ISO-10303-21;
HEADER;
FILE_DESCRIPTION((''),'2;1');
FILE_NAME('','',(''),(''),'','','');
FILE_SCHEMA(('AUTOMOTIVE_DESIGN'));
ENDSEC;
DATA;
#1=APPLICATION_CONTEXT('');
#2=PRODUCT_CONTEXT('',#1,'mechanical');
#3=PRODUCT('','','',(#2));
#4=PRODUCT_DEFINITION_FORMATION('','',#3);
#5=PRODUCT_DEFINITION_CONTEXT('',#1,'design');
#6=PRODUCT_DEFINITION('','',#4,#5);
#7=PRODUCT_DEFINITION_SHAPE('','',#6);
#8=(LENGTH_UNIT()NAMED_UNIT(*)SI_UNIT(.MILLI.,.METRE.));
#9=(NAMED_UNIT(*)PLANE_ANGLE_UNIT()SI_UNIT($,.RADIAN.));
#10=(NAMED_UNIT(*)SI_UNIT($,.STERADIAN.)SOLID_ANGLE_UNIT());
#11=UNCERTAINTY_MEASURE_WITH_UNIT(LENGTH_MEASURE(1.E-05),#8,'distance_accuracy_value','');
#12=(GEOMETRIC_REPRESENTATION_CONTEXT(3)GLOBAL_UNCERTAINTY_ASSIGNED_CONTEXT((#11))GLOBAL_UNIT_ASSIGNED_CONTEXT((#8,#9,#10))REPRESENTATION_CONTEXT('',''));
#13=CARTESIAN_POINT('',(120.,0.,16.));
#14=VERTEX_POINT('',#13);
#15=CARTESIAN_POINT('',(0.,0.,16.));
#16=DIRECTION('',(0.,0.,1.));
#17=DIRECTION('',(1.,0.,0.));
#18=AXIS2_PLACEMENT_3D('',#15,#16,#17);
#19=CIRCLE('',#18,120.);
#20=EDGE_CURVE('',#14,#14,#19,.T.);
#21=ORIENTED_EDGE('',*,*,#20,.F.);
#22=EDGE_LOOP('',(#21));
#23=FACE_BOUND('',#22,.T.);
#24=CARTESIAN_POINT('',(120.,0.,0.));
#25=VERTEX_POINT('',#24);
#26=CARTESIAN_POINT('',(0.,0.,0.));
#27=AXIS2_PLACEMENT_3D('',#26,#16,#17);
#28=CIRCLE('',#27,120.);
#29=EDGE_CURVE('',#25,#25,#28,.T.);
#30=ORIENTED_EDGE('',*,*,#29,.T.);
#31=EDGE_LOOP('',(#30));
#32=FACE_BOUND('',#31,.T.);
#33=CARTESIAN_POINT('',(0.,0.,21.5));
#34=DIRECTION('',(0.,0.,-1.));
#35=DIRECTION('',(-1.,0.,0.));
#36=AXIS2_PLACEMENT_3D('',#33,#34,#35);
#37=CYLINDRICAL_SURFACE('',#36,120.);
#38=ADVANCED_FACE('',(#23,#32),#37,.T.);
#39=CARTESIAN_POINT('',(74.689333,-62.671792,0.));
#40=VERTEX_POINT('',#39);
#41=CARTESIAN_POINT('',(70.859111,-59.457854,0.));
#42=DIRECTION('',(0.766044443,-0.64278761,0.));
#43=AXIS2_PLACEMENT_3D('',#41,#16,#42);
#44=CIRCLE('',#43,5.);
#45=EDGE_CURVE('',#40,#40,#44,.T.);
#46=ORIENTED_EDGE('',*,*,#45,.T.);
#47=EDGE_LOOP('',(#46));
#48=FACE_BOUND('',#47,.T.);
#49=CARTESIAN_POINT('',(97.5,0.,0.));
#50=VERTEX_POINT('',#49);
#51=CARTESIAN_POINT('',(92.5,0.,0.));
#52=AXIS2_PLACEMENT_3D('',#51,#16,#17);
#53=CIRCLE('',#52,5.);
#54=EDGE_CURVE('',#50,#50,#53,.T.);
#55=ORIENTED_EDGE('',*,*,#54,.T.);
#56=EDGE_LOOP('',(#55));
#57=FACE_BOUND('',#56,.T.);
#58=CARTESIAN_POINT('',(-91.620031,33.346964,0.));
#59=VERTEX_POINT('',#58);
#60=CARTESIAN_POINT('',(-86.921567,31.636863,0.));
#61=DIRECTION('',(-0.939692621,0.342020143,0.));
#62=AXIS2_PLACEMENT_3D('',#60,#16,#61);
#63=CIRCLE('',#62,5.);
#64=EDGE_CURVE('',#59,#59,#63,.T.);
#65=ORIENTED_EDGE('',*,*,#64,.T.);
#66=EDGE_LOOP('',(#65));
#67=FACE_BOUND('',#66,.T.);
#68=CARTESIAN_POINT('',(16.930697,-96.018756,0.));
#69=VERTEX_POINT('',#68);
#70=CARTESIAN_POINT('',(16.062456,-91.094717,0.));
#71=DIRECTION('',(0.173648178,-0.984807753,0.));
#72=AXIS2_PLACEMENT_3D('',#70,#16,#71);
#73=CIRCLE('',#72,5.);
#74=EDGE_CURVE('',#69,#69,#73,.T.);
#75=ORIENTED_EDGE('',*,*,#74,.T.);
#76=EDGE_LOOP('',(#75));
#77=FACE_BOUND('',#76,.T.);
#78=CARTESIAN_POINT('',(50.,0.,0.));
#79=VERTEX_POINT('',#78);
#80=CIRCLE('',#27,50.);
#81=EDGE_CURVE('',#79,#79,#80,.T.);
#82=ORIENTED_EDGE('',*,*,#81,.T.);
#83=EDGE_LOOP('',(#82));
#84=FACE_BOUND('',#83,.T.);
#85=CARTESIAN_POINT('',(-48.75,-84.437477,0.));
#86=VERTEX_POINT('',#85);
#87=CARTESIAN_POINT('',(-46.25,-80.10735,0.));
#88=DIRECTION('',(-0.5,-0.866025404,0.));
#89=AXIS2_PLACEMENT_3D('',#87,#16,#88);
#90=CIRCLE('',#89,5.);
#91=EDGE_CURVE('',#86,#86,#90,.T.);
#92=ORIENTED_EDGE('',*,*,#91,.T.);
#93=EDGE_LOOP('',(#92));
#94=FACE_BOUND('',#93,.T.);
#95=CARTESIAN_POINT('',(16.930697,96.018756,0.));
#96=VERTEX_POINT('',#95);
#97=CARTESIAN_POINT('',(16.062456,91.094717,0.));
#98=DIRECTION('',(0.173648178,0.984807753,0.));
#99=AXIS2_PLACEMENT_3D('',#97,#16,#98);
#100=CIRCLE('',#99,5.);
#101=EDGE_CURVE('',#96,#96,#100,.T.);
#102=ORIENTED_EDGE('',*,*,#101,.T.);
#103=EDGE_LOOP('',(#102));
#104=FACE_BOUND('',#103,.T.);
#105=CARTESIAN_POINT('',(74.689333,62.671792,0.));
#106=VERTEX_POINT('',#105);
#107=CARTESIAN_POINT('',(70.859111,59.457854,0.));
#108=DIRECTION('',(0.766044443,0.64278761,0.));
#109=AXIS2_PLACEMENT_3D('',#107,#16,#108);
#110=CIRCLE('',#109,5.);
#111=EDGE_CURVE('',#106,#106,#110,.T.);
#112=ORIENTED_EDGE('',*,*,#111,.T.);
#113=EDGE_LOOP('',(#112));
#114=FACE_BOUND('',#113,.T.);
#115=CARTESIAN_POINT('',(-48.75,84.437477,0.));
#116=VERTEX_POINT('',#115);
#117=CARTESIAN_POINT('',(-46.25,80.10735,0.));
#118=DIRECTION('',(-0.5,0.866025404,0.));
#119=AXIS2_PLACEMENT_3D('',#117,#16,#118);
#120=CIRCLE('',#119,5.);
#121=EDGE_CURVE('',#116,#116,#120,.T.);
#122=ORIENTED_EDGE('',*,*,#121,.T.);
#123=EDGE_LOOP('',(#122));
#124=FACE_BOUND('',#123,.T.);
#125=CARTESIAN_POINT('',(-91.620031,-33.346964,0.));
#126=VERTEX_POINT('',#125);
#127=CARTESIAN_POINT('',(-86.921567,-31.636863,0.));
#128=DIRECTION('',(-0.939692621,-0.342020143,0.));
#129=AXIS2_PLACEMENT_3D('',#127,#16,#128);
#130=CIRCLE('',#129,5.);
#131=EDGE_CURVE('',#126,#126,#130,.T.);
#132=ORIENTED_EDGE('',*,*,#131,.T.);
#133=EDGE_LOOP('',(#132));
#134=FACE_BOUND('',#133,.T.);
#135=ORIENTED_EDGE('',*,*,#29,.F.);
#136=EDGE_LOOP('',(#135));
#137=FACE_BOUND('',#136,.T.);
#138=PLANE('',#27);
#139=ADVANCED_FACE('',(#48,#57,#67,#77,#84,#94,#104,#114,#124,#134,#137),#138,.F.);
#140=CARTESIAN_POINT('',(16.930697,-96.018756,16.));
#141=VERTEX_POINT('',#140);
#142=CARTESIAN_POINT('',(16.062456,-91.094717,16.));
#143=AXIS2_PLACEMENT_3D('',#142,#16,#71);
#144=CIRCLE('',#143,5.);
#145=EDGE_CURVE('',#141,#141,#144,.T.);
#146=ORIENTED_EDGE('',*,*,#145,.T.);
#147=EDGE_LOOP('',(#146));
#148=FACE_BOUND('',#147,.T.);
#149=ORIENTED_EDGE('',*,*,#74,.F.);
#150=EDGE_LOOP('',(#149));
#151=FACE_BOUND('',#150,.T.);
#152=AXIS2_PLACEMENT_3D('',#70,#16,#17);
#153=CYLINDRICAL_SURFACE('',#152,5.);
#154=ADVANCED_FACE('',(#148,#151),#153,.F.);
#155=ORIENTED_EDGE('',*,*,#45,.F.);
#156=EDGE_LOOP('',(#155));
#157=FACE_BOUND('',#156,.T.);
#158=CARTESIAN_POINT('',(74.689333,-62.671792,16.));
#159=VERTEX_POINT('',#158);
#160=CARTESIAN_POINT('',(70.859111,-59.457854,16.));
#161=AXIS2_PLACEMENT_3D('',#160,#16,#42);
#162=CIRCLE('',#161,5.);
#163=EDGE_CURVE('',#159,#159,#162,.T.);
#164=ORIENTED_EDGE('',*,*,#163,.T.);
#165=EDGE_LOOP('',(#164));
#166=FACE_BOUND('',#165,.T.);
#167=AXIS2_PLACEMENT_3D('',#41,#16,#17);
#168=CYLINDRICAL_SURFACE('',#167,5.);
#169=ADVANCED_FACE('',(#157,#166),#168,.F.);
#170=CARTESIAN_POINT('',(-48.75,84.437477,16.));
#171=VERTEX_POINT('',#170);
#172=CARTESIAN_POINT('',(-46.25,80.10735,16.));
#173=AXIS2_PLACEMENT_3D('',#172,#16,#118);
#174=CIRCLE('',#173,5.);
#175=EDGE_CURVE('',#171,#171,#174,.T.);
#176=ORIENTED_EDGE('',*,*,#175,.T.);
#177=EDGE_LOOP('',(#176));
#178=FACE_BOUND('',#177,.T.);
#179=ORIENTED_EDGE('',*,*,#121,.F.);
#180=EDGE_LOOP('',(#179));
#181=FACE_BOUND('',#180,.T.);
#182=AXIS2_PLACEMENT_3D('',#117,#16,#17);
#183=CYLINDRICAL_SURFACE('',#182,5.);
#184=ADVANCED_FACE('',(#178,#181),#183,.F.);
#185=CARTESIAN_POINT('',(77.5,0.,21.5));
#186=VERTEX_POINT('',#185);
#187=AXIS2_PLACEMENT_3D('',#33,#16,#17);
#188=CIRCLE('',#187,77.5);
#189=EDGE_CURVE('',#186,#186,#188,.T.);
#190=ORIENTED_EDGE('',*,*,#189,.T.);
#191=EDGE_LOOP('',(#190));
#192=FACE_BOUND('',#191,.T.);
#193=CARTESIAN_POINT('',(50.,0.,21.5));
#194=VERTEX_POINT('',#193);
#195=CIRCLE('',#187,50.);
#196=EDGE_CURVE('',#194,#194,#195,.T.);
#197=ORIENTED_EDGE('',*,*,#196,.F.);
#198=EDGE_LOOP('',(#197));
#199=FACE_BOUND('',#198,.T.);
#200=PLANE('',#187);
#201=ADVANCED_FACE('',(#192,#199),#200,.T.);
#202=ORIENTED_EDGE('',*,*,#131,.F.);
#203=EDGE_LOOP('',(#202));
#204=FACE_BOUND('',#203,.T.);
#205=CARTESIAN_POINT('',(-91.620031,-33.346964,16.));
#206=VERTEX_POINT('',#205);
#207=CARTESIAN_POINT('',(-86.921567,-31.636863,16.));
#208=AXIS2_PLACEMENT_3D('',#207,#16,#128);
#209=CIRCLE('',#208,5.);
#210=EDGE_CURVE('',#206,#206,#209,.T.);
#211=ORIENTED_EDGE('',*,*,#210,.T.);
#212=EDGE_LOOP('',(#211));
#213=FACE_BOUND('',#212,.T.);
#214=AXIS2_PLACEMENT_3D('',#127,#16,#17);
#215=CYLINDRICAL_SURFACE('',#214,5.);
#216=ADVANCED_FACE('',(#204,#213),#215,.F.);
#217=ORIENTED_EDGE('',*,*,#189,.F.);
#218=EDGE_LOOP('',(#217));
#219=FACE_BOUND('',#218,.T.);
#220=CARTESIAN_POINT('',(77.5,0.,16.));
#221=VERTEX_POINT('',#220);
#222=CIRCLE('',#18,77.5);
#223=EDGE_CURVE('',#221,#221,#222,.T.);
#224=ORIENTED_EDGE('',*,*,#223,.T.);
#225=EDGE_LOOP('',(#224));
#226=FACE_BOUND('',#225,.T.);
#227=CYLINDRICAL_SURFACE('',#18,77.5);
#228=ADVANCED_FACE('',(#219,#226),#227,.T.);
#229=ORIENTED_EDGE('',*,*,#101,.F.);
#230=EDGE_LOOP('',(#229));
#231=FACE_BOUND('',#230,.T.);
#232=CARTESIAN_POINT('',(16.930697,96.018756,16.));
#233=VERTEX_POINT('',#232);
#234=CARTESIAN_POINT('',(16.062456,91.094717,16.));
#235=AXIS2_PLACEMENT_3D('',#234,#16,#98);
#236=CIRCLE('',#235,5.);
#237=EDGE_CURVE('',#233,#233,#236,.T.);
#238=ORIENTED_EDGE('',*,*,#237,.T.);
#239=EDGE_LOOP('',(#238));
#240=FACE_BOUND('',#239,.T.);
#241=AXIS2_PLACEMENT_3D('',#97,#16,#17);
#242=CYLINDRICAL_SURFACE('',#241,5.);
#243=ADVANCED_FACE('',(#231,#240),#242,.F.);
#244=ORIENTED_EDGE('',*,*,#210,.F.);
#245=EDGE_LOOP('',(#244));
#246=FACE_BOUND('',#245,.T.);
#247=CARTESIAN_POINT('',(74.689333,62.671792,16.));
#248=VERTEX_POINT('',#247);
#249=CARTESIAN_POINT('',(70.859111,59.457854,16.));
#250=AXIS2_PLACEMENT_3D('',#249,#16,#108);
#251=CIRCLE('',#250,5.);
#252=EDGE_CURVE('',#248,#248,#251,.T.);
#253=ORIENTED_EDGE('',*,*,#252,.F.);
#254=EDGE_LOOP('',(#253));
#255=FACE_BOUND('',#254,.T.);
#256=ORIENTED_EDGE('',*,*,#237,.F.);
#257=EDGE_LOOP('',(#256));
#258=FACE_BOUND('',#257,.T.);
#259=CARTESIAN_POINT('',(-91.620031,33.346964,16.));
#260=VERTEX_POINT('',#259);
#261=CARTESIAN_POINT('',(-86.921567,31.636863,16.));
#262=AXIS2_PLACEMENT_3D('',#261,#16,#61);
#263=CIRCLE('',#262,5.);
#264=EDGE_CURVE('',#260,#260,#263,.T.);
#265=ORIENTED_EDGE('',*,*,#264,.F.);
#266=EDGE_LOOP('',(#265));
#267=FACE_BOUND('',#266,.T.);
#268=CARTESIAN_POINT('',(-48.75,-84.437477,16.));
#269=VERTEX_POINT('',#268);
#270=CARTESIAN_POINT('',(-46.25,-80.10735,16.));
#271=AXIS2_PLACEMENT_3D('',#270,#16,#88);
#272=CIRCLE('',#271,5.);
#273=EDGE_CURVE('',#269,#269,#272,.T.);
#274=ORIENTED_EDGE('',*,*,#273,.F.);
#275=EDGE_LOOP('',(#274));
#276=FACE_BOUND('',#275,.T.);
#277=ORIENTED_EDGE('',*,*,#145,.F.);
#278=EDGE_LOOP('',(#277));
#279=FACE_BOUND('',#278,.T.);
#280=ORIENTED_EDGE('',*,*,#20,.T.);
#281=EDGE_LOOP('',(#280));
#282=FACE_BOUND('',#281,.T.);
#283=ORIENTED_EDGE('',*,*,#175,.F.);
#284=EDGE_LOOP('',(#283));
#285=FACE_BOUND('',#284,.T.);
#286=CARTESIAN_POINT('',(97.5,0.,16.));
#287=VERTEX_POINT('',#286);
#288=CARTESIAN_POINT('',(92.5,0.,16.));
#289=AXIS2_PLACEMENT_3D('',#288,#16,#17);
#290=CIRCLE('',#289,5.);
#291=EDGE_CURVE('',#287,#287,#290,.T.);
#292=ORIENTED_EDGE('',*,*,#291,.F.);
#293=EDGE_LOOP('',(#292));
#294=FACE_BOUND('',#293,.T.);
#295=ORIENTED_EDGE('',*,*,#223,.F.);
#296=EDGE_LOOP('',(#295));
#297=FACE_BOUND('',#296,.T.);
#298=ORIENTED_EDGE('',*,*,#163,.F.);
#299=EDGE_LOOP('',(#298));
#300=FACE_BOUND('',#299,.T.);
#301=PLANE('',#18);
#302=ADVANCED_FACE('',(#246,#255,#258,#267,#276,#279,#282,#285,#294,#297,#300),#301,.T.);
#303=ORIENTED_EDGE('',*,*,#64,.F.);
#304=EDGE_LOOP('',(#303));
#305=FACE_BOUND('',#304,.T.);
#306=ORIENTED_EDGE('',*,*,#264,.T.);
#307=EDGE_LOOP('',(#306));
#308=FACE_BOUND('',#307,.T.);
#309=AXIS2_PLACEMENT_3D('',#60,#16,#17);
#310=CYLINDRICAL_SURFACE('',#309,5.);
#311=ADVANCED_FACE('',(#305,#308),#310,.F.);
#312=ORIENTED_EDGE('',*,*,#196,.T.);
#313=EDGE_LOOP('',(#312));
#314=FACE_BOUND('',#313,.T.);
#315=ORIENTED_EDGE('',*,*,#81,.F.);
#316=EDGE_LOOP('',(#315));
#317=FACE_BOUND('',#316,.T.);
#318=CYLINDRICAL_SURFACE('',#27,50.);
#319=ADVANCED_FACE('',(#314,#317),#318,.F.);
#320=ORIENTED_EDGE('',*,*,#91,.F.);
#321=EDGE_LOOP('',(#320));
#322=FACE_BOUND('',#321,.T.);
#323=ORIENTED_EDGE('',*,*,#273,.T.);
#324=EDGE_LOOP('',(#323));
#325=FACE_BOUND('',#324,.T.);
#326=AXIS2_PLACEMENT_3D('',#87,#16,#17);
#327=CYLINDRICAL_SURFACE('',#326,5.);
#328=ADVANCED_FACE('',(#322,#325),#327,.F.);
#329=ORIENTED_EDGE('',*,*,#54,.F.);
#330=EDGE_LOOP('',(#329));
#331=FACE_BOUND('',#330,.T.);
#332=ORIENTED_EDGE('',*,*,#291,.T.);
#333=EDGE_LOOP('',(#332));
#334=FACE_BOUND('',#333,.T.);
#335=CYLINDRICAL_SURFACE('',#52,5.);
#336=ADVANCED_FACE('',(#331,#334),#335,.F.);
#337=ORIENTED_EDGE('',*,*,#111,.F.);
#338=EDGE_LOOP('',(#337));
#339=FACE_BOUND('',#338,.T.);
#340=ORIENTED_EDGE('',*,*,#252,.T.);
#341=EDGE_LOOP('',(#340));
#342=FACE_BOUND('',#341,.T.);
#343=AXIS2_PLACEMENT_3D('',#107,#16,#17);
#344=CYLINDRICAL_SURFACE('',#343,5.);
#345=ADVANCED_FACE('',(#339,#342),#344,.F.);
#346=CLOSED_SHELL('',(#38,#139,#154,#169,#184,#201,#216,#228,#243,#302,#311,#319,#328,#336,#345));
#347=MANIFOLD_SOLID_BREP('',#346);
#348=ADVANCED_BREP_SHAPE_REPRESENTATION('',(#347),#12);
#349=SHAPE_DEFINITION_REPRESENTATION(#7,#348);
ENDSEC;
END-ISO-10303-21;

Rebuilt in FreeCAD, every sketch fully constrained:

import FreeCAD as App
import Part
import Sketcher
from FreeCAD import Vector

doc = App.newDocument("Part")
body = doc.addObject("PartDesign::Body", "Body")

# Sketch on XY plane
sketch1 = doc.addObject("Sketcher::SketchObject", "Sketch")
body.addObject(sketch1)
sketch1.AttachmentSupport = (doc.XY_Plane, [""])
sketch1.MapMode = "FlatFace"
sketch1.addGeometry(Part.Circle(Vector(0, 0, 0), Vector(0, 0, 1), 120), False)
sketch1.addConstraint([
    Sketcher.Constraint("Coincident", 0, 3, -1, 1),
    Sketcher.Constraint("Diameter", 0, 240.0),
])
pad1 = doc.addObject("PartDesign::Pad", "Pad")
body.addObject(pad1)
pad1.Profile = sketch1
pad1.Length = 21.5

# Sketch on XY plane
sketch2 = doc.addObject("Sketcher::SketchObject", "Sketch001")
body.addObject(sketch2)
sketch2.AttachmentSupport = (doc.XY_Plane, [""])
sketch2.MapMode = "FlatFace"
sketch2.AttachmentOffset = App.Placement(Vector(0, 0, 21.5), App.Rotation())
sketch2.addGeometry([
    Part.LineSegment(Vector(-155, 155, 0), Vector(-155, -155, 0)),  # 0
    Part.LineSegment(Vector(-155, -155, 0), Vector(155, -155, 0)),  # 1
    Part.LineSegment(Vector(155, -155, 0), Vector(155, 155, 0)),  # 2
    Part.LineSegment(Vector(155, 155, 0), Vector(-155, 155, 0)),  # 3
    Part.Circle(Vector(0, 0, 0), Vector(0, 0, 1), 78),  # 4
], False)
sketch2.addConstraint([
    Sketcher.Constraint("Coincident", 0, 2, 1, 1),
    Sketcher.Constraint("Coincident", 1, 2, 2, 1),
    Sketcher.Constraint("Coincident", 2, 2, 3, 1),
    Sketcher.Constraint("Coincident", 3, 2, 0, 1),
    Sketcher.Constraint("Vertical", 0),
    Sketcher.Constraint("Horizontal", 1),
    Sketcher.Constraint("Vertical", 2),
    Sketcher.Constraint("Horizontal", 3),
    Sketcher.Constraint("Coincident", 4, 3, -1, 1),
    Sketcher.Constraint("Symmetric", 0, 2, 2, 2, -1, 1),
    Sketcher.Constraint("Equal", 3, 0),
    Sketcher.Constraint("Diameter", 4, 155.0),
    Sketcher.Constraint("DistanceX", 1, 1, 1, 2, 310.018),
])
pocket1 = doc.addObject("PartDesign::Pocket", "Pocket")
body.addObject(pocket1)
pocket1.Profile = sketch2
pocket1.Length = 5.5

# Sketch on XY plane
sketch3 = doc.addObject("Sketcher::SketchObject", "Sketch002")
body.addObject(sketch3)
sketch3.AttachmentSupport = (doc.XY_Plane, [""])
sketch3.MapMode = "FlatFace"
sketch3.AttachmentOffset = App.Placement(Vector(0, 0, 16), App.Rotation())
sketch3.addGeometry(Part.Circle(Vector(92, 0, 0), Vector(0, 0, 1), 5), False)
sketch3.addConstraint([
    Sketcher.Constraint("PointOnObject", 0, 3, -1),
    Sketcher.Constraint("Diameter", 0, 10.0),
    Sketcher.Constraint("DistanceX", -1, 1, 0, 3, 92.5),
])
pocket2 = doc.addObject("PartDesign::Pocket", "Pocket001")
body.addObject(pocket2)
pocket2.Profile = sketch3
pocket2.Type = "ThroughAll"
doc.recompute()

polarpattern = doc.addObject("PartDesign::PolarPattern", "PolarPattern")
body.addObject(polarpattern)
polarpattern.Originals = [pocket2]
polarpattern.Axis = (doc.Z_Axis, [""])
polarpattern.Angle = 360
polarpattern.Occurrences = 9
body.Tip = polarpattern

# Sketch on XY plane
sketch4 = doc.addObject("Sketcher::SketchObject", "Sketch003")
body.addObject(sketch4)
sketch4.AttachmentSupport = (doc.XY_Plane, [""])
sketch4.MapMode = "FlatFace"
sketch4.AttachmentOffset = App.Placement(Vector(0, 0, 21.5), App.Rotation())
sketch4.addGeometry(Part.Circle(Vector(0, 0, 0), Vector(0, 0, 1), 50), False)
sketch4.addConstraint([
    Sketcher.Constraint("Coincident", 0, 3, -1, 1),
    Sketcher.Constraint("Diameter", 0, 100.0),
])
pocket3 = doc.addObject("PartDesign::Pocket", "Pocket002")
body.addObject(pocket3)
pocket3.Profile = sketch4
pocket3.Type = "ThroughAll"

doc.recompute()
